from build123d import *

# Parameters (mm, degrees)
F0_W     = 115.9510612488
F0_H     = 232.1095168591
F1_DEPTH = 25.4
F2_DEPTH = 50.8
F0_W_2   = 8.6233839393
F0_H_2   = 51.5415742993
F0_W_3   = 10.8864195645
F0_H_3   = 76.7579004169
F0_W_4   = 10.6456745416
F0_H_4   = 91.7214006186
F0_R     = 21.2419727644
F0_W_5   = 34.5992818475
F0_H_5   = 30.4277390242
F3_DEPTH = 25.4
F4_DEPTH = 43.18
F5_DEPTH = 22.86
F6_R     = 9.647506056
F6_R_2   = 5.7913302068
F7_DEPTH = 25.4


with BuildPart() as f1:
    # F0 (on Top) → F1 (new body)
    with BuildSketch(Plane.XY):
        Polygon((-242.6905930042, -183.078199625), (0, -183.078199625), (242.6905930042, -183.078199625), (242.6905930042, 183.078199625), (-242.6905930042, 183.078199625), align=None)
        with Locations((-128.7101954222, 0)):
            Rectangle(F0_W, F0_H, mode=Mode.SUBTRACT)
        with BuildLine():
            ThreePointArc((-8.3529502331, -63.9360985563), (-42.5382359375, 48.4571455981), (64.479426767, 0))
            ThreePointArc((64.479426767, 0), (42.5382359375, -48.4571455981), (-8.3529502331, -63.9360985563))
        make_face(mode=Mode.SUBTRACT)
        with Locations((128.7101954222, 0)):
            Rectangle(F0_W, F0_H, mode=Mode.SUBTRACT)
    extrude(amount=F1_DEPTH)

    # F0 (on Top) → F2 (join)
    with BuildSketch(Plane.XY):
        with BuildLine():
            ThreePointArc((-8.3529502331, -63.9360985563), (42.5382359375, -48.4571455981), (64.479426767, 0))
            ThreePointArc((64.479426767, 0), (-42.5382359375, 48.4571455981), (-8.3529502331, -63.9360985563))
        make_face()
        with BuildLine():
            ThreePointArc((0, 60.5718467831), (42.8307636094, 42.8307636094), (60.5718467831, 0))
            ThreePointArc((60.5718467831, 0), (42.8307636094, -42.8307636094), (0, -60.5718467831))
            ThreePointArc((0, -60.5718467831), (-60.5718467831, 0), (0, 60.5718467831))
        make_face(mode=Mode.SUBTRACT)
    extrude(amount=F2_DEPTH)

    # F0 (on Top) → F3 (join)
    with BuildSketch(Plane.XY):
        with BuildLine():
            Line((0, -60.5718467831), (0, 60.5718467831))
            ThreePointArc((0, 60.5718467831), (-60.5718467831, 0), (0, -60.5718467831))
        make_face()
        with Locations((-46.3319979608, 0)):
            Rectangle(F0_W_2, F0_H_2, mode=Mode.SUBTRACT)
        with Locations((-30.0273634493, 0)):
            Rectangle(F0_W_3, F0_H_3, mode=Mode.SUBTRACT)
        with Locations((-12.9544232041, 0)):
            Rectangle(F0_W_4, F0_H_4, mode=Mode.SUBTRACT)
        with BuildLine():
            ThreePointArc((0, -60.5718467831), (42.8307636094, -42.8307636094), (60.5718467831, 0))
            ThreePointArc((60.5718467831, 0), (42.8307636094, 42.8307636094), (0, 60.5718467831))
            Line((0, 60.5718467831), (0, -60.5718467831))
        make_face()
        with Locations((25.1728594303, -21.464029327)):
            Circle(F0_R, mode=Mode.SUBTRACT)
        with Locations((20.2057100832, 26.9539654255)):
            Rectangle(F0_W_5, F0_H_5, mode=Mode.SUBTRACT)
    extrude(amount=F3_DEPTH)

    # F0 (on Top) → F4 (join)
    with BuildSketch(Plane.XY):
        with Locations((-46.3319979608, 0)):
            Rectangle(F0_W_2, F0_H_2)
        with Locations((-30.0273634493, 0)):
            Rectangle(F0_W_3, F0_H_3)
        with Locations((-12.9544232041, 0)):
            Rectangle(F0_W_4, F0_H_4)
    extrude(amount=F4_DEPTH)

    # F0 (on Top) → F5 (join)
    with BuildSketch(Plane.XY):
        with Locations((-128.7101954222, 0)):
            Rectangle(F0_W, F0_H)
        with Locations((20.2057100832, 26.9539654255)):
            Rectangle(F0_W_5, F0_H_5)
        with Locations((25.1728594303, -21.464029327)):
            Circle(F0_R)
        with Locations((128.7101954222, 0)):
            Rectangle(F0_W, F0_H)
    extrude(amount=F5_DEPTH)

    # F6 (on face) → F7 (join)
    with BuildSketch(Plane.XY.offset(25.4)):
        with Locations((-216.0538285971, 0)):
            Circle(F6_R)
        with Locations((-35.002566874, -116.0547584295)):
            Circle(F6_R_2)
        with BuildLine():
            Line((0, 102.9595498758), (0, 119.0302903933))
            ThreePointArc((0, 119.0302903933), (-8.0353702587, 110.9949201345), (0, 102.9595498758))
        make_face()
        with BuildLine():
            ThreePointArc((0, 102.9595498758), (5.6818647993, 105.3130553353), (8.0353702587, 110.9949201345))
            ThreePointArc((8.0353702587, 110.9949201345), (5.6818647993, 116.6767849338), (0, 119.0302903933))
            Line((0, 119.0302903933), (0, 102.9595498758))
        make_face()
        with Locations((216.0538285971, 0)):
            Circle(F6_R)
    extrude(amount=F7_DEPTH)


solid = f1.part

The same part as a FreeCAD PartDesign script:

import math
import FreeCAD as App
import Part
import Sketcher
Q = App.Units.Quantity


def add_polygon(sketch, points):
    """Adds a closed chain of lines whose ends are joined by coincident constraints."""
    first, n = sketch.GeometryCount, len(points)
    for a, b in zip(points, points[1:] + points[:1]):
        sketch.addGeometry(Part.LineSegment(App.Vector(*a, 0), App.Vector(*b, 0)), False)
    for i in range(n):
        sketch.addConstraint(Sketcher.Constraint("Coincident", first + i, 2, first + (i + 1) % n, 1))

doc = App.newDocument("Part")
body = doc.addObject("PartDesign::Body", "Body")

sketch1 = doc.addObject("Sketcher::SketchObject", "Sketch")
body.addObject(sketch1)
sketch1.AttachmentSupport = (doc.XY_Plane, [""])
sketch1.MapMode = "FlatFace"
add_polygon(sketch1, [(-243, -183), (243, -183), (243, 183), (-243, 183)])
sketch1.addGeometry(Part.ArcOfCircle(Part.Circle(App.Vector(0, 0, 0), App.Vector(0, 0, 1), 64), math.radians(-97), math.radians(0)), False)
sketch1.addGeometry(Part.ArcOfCircle(Part.Circle(App.Vector(0, 0, 0), App.Vector(0, 0, 1), 64), math.radians(0), math.radians(263)), False)
add_polygon(sketch1, [(-71, -116), (-187, -116), (-187, 116), (-71, 116)])
add_polygon(sketch1, [(187, -116), (71, -116), (71, 116), (187, 116)])
sketch1.addConstraint([
    Sketcher.Constraint("Tangent", 4, 1, 5, 2),
    Sketcher.Constraint("Coincident", 5, 1, 4, 2),
    Sketcher.Constraint("Horizontal", 0),
    Sketcher.Constraint("Vertical", 1),
    Sketcher.Constraint("Horizontal", 2),
    Sketcher.Constraint("Vertical", 3),
    Sketcher.Constraint("Horizontal", 6),
    Sketcher.Constraint("Vertical", 7),
    Sketcher.Constraint("Horizontal", 8),
    Sketcher.Constraint("Vertical", 9),
    Sketcher.Constraint("Horizontal", 10),
    Sketcher.Constraint("Vertical", 11),
    Sketcher.Constraint("Horizontal", 12),
    Sketcher.Constraint("Vertical", 13),
    Sketcher.Constraint("Coincident", 4, 3, -1, 1),
    Sketcher.Constraint("Symmetric", 0, 2, 2, 2, -1, 1),
    Sketcher.Constraint("Symmetric", 8, 2, 10, 2, -1, 1),
    Sketcher.Constraint("Symmetric", 6, 2, 12, 2, -1, 1),
    Sketcher.Constraint("PointOnObject", 5, 1, -1),
    Sketcher.Constraint("Horizontal", 9, 2, 10, 2),
    Sketcher.Constraint("DistanceY", 1, 1, 1, 2, 366.156399),
    Sketcher.Constraint("Radius", 4, 64.479427),
    Sketcher.Constraint("DistanceX", 6, 2, 6, 1, 115.951061),
    Sketcher.Constraint("DistanceY", 4, 1, -1, 1, 63.936099),
    Sketcher.Constraint("DistanceX", 5, 1, 12, 2, 122.206299),
    Sketcher.Constraint("DistanceX", 0, 1, 0, 2, 485.381186),
    Sketcher.Constraint("DistanceY", 7, 1, 7, 2, 232.109517),
])
pad1 = doc.addObject("PartDesign::Pad", "Pad")
body.addObject(pad1)
pad1.Profile = sketch1
pad1.Length = Q("1 in")

sketch2 = doc.addObject("Sketcher::SketchObject", "Sketch001")
body.addObject(sketch2)
sketch2.AttachmentSupport = (doc.XY_Plane, [""])
sketch2.MapMode = "FlatFace"
sketch2.addGeometry([
    Part.ArcOfCircle(Part.Circle(App.Vector(0, 0, 0), App.Vector(0, 0, 1), 64), math.radians(-97), math.radians(0)),
    Part.ArcOfCircle(Part.Circle(App.Vector(0, 0, 0), App.Vector(0, 0, 1), 64), math.radians(0), math.radians(263)),
    Part.ArcOfCircle(Part.Circle(App.Vector(0, 0, 0), App.Vector(0, 0, 1), 61), math.radians(90), math.radians(270)),
    Part.ArcOfCircle(Part.Circle(App.Vector(0, 0, 0), App.Vector(0, 0, 1), 61), math.radians(0), math.radians(90)),
    Part.ArcOfCircle(Part.Circle(App.Vector(0, 0, 0), App.Vector(0, 0, 1), 61), math.radians(-90), math.radians(0)),
], False)
sketch2.addConstraint([
    Sketcher.Constraint("Tangent", 0, 1, 1, 2),
    Sketcher.Constraint("Coincident", 1, 1, 0, 2),
    Sketcher.Constraint("Tangent", 2, 1, 3, 2),
    Sketcher.Constraint("Tangent", 3, 1, 4, 2),
    Sketcher.Constraint("Tangent", 4, 1, 2, 2),
    Sketcher.Constraint("Coincident", 0, 3, -1, 1),
    Sketcher.Constraint("Coincident", 2, 3, -1, 1),
    Sketcher.Constraint("PointOnObject", 1, 1, -1),
    Sketcher.Constraint("PointOnObject", 2, 1, -2),
    Sketcher.Constraint("PointOnObject", 3, 1, -1),
    Sketcher.Constraint("PointOnObject", 4, 1, -2),
    Sketcher.Constraint("Radius", 0, 64.479427),
    Sketcher.Constraint("Radius", 2, 60.571847),
    Sketcher.Constraint("DistanceY", 0, 1, -1, 1, 63.936099),
])
pad2 = doc.addObject("PartDesign::Pad", "Pad001")
body.addObject(pad2)
pad2.Profile = sketch2
pad2.Length = Q("2 in")

sketch3 = doc.addObject("Sketcher::SketchObject", "Sketch002")
body.addObject(sketch3)
sketch3.AttachmentSupport = (doc.XY_Plane, [""])
sketch3.MapMode = "FlatFace"
sketch3.addGeometry(Part.ArcOfCircle(Part.Circle(App.Vector(0, 0, 0), App.Vector(0, 0, 1), 61), math.radians(90), math.radians(270)), False)
sketch3.addGeometry(Part.ArcOfCircle(Part.Circle(App.Vector(0, 0, 0), App.Vector(0, 0, 1), 61), math.radians(-90), math.radians(0)), False)
sketch3.addGeometry(Part.ArcOfCircle(Part.Circle(App.Vector(0, 0, 0), App.Vector(0, 0, 1), 61), math.radians(0), math.radians(90)), False)
sketch3.addGeometry(Part.Circle(App.Vector(25, -21, 0), App.Vector(0, 0, 1), 21), False)
add_polygon(sketch3, [(-42, -26), (-51, -26), (-51, 26), (-42, 26)])
add_polygon(sketch3, [(-25, -38), (-35, -38), (-35, 38), (-25, 38)])
add_polygon(sketch3, [(-8, -46), (-18, -46), (-18, 46), (-8, 46)])
add_polygon(sketch3, [(38, 12), (3, 12), (3, 42), (38, 42)])
sketch3.addConstraint([
    Sketcher.Constraint("Tangent", 0, 2, 1, 1),
    Sketcher.Constraint("Tangent", 1, 2, 2, 1),
    Sketcher.Constraint("Tangent", 2, 2, 0, 1),
    Sketcher.Constraint("Horizontal", 4),
    Sketcher.Constraint("Vertical", 5),
    Sketcher.Constraint("Horizontal", 6),
    Sketcher.Constraint("Vertical", 7),
    Sketcher.Constraint("Horizontal", 8),
    Sketcher.Constraint("Vertical", 9),
    Sketcher.Constraint("Horizontal", 10),
    Sketcher.Constraint("Vertical", 11),
    Sketcher.Constraint("Horizontal", 12),
    Sketcher.Constraint("Vertical", 13),
    Sketcher.Constraint("Horizontal", 14),
    Sketcher.Constraint("Vertical", 15),
    Sketcher.Constraint("Horizontal", 16),
    Sketcher.Constraint("Vertical", 17),
    Sketcher.Constraint("Horizontal", 18),
    Sketcher.Constraint("Vertical", 19),
    Sketcher.Constraint("Coincident", 0, 3, -1, 1),
    Sketcher.Constraint("PointOnObject", 0, 2, -2),
    Sketcher.Constraint("PointOnObject", 1, 2, -1),
    Sketcher.Constraint("PointOnObject", 2, 2, -2),
    Sketcher.Constraint("Diameter", 3, 42.483946),
    Sketcher.Constraint("DistanceY", 9, 1, 9, 2, 76.7579),
    Sketcher.Constraint("DistanceY", 13, 1, 13, 2, 91.721401),
    Sketcher.Constraint("Radius", 0, 60.571847),
    Sketcher.Constraint("DistanceX", 8, 2, 8, 1, 10.88642),
    Sketcher.Constraint("DistanceX", 16, 2, 16, 1, 34.599282),
    Sketcher.Constraint("DistanceY", 17, 1, 17, 2, 30.427739),
    Sketcher.Constraint("DistanceY", 12, 2, -1, 1, 45.8607),
    Sketcher.Constraint("DistanceX", 4, 2, 4, 1, 8.623384),
    Sketcher.Constraint("DistanceX", 12, 2, 12, 1, 10.645675),
    Sketcher.Constraint("DistanceY", 5, 1, 5, 2, 51.541574),
    Sketcher.Constraint("DistanceX", -1, 1, 3, 3, 25.172859),
    Sketcher.Constraint("DistanceY", 3, 3, -1, 1, 21.464029),
    Sketcher.Constraint("DistanceX", 4, 2, -1, 1, 50.64369),
    Sketcher.Constraint("DistanceY", 8, 2, -1, 1, 38.37895),
    Sketcher.Constraint("DistanceX", 12, 2, -1, 1, 18.27726),
    Sketcher.Constraint("DistanceX", -1, 1, 16, 2, 2.906069),
    Sketcher.Constraint("DistanceY", 0, 2, 4, 2, 34.80106),
    Sketcher.Constraint("DistanceY", 17, 2, 2, 2, 18.404012),
    Sketcher.Constraint("DistanceX", 8, 2, -1, 1, 35.470573),
])
pad3 = doc.addObject("PartDesign::Pad", "Pad002")
body.addObject(pad3)
pad3.Profile = sketch3
pad3.Length = Q("1 in")

sketch4 = doc.addObject("Sketcher::SketchObject", "Sketch003")
body.addObject(sketch4)
sketch4.AttachmentSupport = (doc.XY_Plane, [""])
sketch4.MapMode = "FlatFace"
add_polygon(sketch4, [(-51, 26), (-51, -26), (-42, -26), (-42, 26)])
add_polygon(sketch4, [(-35, 38), (-35, -38), (-25, -38), (-25, 38)])
add_polygon(sketch4, [(-18, 46), (-18, -46), (-8, -46), (-8, 46)])
sketch4.addConstraint([
    Sketcher.Constraint("Vertical", 0),
    Sketcher.Constraint("Horizontal", 1),
    Sketcher.Constraint("Vertical", 2),
    Sketcher.Constraint("Horizontal", 3),
    Sketcher.Constraint("Vertical", 4),
    Sketcher.Constraint("Horizontal", 5),
    Sketcher.Constraint("Vertical", 6),
    Sketcher.Constraint("Horizontal", 7),
    Sketcher.Constraint("Vertical", 8),
    Sketcher.Constraint("Horizontal", 9),
    Sketcher.Constraint("Vertical", 10),
    Sketcher.Constraint("Horizontal", 11),
    Sketcher.Constraint("DistanceY", 4, 2, 4, 1, 76.7579),
    Sketcher.Constraint("DistanceY", 8, 2, 8, 1, 91.721401),
    Sketcher.Constraint("DistanceX", 5, 1, 5, 2, 10.88642),
    Sketcher.Constraint("DistanceY", 8, 2, -1, 1, 45.8607),
    Sketcher.Constraint("DistanceX", 1, 1, 1, 2, 8.623384),
    Sketcher.Constraint("DistanceX", 9, 1, 9, 2, 10.645675),
    Sketcher.Constraint("DistanceY", 0, 2, 0, 1, 51.541574),
    Sketcher.Constraint("DistanceX", 0, 2, -1, 1, 50.64369),
    Sketcher.Constraint("DistanceY", 4, 2, -1, 1, 38.37895),
    Sketcher.Constraint("DistanceX", 8, 2, -1, 1, 18.27726),
    Sketcher.Constraint("DistanceY", 0, 2, -1, 1, 25.770787),
    Sketcher.Constraint("DistanceX", 4, 2, -1, 1, 35.470573),
])
pad4 = doc.addObject("PartDesign::Pad", "Pad003")
body.addObject(pad4)
pad4.Profile = sketch4
pad4.Length = Q("1.7 in")

sketch5 = doc.addObject("Sketcher::SketchObject", "Sketch004")
body.addObject(sketch5)
sketch5.AttachmentSupport = (doc.XY_Plane, [""])
sketch5.MapMode = "FlatFace"
add_polygon(sketch5, [(-187, 116), (-187, -116), (-71, -116), (-71, 116)])
add_polygon(sketch5, [(3, 42), (3, 12), (38, 12), (38, 42)])
sketch5.addGeometry(Part.Circle(App.Vector(25, -21, 0), App.Vector(0, 0, 1), 21), False)
add_polygon(sketch5, [(71, 116), (71, -116), (187, -116), (187, 116)])
sketch5.addConstraint([
    Sketcher.Constraint("Vertical", 0),
    Sketcher.Constraint("Horizontal", 1),
    Sketcher.Constraint("Vertical", 2),
    Sketcher.Constraint("Horizontal", 3),
    Sketcher.Constraint("Vertical", 4),
    Sketcher.Constraint("Horizontal", 5),
    Sketcher.Constraint("Vertical", 6),
    Sketcher.Constraint("Horizontal", 7),
    Sketcher.Constraint("Vertical", 9),
    Sketcher.Constraint("Horizontal", 10),
    Sketcher.Constraint("Vertical", 11),
    Sketcher.Constraint("Horizontal", 12),
    Sketcher.Constraint("Symmetric", 2, 2, 9, 2, -1, 1),
    Sketcher.Constraint("Symmetric", 0, 2, 11, 2, -1, 1),
    Sketcher.Constraint("Horizontal", 1, 2, 9, 2),
    Sketcher.Constraint("Diameter", 8, 42.483946),
    Sketcher.Constraint("DistanceX", 1, 1, 1, 2, 115.951061),
    Sketcher.Constraint("DistanceX", 5, 1, 5, 2, 34.599282),
    Sketcher.Constraint("DistanceY", 4, 2, 4, 1, 30.427739),
    Sketcher.Constraint("DistanceY", 0, 2, 0, 1, 232.109517),
    Sketcher.Constraint("DistanceX", -1, 1, 8, 3, 25.172859),
    Sketcher.Constraint("DistanceY", 8, 3, -1, 1, 21.464029),
    Sketcher.Constraint("DistanceX", -1, 1, 4, 2, 2.906069),
    Sketcher.Constraint("DistanceX", 1, 2, 9, 2, 141.46933),
    Sketcher.Constraint("DistanceY", -1, 1, 4, 2, 11.740096),
])
pad5 = doc.addObject("PartDesign::Pad", "Pad004")
body.addObject(pad5)
pad5.Profile = sketch5
pad5.Length = Q("0.9 in")

sketch6 = doc.addObject("Sketcher::SketchObject", "Sketch005")
body.addObject(sketch6)
sketch6.AttachmentSupport = (doc.XY_Plane, [""])
sketch6.MapMode = "FlatFace"
sketch6.AttachmentOffset = App.Placement(App.Vector(0, 0, 1 * 25.4), App.Rotation())
sketch6.addGeometry([
    Part.Circle(App.Vector(-216, 0, 0), App.Vector(0, 0, 1), 10),
    Part.Circle(App.Vector(-35, -116, 0), App.Vector(0, 0, 1), 6),
    Part.ArcOfCircle(Part.Circle(App.Vector(0, 111, 0), App.Vector(0, 0, 1), 8), math.radians(90), math.radians(270)),
    Part.ArcOfCircle(Part.Circle(App.Vector(0, 111, 0), App.Vector(0, 0, 1), 8), math.radians(-90), math.radians(0)),
    Part.ArcOfCircle(Part.Circle(App.Vector(0, 111, 0), App.Vector(0, 0, 1), 8), math.radians(0), math.radians(90)),
    Part.Circle(App.Vector(216, 0, 0), App.Vector(0, 0, 1), 10),
], False)
sketch6.addConstraint([
    Sketcher.Constraint("Tangent", 2, 2, 3, 1),
    Sketcher.Constraint("Tangent", 3, 2, 4, 1),
    Sketcher.Constraint("Tangent", 4, 2, 2, 1),
    Sketcher.Constraint("Equal", 0, 5),
    Sketcher.Constraint("Symmetric", 0, 3, 5, 3, -1, 1),
    Sketcher.Constraint("PointOnObject", 0, 3, -1),
    Sketcher.Constraint("PointOnObject", 2, 3, -2),
    Sketcher.Constraint("PointOnObject", 2, 2, -2),
    Sketcher.Constraint("PointOnObject", 4, 2, -2),
    Sketcher.Constraint("Horizontal", 4, 3, 3, 2),
    Sketcher.Constraint("Diameter", 1, 11.58266),
    Sketcher.Constraint("Radius", 2, 8.03537),
    Sketcher.Constraint("Diameter", 0, 19.295012),
    Sketcher.Constraint("DistanceX", 0, 3, -1, 1, 216.053829),
    Sketcher.Constraint("DistanceY", 1, 3, -1, 1, 116.054758),
    Sketcher.Constraint("DistanceY", -1, 1, 2, 3, 110.99492),
    Sketcher.Constraint("DistanceX", 0, 3, 1, 3, 181.051262),
])
pad6 = doc.addObject("PartDesign::Pad", "Pad005")
body.addObject(pad6)
pad6.Profile = sketch6
pad6.Length = Q("1 in")

doc.recompute()
